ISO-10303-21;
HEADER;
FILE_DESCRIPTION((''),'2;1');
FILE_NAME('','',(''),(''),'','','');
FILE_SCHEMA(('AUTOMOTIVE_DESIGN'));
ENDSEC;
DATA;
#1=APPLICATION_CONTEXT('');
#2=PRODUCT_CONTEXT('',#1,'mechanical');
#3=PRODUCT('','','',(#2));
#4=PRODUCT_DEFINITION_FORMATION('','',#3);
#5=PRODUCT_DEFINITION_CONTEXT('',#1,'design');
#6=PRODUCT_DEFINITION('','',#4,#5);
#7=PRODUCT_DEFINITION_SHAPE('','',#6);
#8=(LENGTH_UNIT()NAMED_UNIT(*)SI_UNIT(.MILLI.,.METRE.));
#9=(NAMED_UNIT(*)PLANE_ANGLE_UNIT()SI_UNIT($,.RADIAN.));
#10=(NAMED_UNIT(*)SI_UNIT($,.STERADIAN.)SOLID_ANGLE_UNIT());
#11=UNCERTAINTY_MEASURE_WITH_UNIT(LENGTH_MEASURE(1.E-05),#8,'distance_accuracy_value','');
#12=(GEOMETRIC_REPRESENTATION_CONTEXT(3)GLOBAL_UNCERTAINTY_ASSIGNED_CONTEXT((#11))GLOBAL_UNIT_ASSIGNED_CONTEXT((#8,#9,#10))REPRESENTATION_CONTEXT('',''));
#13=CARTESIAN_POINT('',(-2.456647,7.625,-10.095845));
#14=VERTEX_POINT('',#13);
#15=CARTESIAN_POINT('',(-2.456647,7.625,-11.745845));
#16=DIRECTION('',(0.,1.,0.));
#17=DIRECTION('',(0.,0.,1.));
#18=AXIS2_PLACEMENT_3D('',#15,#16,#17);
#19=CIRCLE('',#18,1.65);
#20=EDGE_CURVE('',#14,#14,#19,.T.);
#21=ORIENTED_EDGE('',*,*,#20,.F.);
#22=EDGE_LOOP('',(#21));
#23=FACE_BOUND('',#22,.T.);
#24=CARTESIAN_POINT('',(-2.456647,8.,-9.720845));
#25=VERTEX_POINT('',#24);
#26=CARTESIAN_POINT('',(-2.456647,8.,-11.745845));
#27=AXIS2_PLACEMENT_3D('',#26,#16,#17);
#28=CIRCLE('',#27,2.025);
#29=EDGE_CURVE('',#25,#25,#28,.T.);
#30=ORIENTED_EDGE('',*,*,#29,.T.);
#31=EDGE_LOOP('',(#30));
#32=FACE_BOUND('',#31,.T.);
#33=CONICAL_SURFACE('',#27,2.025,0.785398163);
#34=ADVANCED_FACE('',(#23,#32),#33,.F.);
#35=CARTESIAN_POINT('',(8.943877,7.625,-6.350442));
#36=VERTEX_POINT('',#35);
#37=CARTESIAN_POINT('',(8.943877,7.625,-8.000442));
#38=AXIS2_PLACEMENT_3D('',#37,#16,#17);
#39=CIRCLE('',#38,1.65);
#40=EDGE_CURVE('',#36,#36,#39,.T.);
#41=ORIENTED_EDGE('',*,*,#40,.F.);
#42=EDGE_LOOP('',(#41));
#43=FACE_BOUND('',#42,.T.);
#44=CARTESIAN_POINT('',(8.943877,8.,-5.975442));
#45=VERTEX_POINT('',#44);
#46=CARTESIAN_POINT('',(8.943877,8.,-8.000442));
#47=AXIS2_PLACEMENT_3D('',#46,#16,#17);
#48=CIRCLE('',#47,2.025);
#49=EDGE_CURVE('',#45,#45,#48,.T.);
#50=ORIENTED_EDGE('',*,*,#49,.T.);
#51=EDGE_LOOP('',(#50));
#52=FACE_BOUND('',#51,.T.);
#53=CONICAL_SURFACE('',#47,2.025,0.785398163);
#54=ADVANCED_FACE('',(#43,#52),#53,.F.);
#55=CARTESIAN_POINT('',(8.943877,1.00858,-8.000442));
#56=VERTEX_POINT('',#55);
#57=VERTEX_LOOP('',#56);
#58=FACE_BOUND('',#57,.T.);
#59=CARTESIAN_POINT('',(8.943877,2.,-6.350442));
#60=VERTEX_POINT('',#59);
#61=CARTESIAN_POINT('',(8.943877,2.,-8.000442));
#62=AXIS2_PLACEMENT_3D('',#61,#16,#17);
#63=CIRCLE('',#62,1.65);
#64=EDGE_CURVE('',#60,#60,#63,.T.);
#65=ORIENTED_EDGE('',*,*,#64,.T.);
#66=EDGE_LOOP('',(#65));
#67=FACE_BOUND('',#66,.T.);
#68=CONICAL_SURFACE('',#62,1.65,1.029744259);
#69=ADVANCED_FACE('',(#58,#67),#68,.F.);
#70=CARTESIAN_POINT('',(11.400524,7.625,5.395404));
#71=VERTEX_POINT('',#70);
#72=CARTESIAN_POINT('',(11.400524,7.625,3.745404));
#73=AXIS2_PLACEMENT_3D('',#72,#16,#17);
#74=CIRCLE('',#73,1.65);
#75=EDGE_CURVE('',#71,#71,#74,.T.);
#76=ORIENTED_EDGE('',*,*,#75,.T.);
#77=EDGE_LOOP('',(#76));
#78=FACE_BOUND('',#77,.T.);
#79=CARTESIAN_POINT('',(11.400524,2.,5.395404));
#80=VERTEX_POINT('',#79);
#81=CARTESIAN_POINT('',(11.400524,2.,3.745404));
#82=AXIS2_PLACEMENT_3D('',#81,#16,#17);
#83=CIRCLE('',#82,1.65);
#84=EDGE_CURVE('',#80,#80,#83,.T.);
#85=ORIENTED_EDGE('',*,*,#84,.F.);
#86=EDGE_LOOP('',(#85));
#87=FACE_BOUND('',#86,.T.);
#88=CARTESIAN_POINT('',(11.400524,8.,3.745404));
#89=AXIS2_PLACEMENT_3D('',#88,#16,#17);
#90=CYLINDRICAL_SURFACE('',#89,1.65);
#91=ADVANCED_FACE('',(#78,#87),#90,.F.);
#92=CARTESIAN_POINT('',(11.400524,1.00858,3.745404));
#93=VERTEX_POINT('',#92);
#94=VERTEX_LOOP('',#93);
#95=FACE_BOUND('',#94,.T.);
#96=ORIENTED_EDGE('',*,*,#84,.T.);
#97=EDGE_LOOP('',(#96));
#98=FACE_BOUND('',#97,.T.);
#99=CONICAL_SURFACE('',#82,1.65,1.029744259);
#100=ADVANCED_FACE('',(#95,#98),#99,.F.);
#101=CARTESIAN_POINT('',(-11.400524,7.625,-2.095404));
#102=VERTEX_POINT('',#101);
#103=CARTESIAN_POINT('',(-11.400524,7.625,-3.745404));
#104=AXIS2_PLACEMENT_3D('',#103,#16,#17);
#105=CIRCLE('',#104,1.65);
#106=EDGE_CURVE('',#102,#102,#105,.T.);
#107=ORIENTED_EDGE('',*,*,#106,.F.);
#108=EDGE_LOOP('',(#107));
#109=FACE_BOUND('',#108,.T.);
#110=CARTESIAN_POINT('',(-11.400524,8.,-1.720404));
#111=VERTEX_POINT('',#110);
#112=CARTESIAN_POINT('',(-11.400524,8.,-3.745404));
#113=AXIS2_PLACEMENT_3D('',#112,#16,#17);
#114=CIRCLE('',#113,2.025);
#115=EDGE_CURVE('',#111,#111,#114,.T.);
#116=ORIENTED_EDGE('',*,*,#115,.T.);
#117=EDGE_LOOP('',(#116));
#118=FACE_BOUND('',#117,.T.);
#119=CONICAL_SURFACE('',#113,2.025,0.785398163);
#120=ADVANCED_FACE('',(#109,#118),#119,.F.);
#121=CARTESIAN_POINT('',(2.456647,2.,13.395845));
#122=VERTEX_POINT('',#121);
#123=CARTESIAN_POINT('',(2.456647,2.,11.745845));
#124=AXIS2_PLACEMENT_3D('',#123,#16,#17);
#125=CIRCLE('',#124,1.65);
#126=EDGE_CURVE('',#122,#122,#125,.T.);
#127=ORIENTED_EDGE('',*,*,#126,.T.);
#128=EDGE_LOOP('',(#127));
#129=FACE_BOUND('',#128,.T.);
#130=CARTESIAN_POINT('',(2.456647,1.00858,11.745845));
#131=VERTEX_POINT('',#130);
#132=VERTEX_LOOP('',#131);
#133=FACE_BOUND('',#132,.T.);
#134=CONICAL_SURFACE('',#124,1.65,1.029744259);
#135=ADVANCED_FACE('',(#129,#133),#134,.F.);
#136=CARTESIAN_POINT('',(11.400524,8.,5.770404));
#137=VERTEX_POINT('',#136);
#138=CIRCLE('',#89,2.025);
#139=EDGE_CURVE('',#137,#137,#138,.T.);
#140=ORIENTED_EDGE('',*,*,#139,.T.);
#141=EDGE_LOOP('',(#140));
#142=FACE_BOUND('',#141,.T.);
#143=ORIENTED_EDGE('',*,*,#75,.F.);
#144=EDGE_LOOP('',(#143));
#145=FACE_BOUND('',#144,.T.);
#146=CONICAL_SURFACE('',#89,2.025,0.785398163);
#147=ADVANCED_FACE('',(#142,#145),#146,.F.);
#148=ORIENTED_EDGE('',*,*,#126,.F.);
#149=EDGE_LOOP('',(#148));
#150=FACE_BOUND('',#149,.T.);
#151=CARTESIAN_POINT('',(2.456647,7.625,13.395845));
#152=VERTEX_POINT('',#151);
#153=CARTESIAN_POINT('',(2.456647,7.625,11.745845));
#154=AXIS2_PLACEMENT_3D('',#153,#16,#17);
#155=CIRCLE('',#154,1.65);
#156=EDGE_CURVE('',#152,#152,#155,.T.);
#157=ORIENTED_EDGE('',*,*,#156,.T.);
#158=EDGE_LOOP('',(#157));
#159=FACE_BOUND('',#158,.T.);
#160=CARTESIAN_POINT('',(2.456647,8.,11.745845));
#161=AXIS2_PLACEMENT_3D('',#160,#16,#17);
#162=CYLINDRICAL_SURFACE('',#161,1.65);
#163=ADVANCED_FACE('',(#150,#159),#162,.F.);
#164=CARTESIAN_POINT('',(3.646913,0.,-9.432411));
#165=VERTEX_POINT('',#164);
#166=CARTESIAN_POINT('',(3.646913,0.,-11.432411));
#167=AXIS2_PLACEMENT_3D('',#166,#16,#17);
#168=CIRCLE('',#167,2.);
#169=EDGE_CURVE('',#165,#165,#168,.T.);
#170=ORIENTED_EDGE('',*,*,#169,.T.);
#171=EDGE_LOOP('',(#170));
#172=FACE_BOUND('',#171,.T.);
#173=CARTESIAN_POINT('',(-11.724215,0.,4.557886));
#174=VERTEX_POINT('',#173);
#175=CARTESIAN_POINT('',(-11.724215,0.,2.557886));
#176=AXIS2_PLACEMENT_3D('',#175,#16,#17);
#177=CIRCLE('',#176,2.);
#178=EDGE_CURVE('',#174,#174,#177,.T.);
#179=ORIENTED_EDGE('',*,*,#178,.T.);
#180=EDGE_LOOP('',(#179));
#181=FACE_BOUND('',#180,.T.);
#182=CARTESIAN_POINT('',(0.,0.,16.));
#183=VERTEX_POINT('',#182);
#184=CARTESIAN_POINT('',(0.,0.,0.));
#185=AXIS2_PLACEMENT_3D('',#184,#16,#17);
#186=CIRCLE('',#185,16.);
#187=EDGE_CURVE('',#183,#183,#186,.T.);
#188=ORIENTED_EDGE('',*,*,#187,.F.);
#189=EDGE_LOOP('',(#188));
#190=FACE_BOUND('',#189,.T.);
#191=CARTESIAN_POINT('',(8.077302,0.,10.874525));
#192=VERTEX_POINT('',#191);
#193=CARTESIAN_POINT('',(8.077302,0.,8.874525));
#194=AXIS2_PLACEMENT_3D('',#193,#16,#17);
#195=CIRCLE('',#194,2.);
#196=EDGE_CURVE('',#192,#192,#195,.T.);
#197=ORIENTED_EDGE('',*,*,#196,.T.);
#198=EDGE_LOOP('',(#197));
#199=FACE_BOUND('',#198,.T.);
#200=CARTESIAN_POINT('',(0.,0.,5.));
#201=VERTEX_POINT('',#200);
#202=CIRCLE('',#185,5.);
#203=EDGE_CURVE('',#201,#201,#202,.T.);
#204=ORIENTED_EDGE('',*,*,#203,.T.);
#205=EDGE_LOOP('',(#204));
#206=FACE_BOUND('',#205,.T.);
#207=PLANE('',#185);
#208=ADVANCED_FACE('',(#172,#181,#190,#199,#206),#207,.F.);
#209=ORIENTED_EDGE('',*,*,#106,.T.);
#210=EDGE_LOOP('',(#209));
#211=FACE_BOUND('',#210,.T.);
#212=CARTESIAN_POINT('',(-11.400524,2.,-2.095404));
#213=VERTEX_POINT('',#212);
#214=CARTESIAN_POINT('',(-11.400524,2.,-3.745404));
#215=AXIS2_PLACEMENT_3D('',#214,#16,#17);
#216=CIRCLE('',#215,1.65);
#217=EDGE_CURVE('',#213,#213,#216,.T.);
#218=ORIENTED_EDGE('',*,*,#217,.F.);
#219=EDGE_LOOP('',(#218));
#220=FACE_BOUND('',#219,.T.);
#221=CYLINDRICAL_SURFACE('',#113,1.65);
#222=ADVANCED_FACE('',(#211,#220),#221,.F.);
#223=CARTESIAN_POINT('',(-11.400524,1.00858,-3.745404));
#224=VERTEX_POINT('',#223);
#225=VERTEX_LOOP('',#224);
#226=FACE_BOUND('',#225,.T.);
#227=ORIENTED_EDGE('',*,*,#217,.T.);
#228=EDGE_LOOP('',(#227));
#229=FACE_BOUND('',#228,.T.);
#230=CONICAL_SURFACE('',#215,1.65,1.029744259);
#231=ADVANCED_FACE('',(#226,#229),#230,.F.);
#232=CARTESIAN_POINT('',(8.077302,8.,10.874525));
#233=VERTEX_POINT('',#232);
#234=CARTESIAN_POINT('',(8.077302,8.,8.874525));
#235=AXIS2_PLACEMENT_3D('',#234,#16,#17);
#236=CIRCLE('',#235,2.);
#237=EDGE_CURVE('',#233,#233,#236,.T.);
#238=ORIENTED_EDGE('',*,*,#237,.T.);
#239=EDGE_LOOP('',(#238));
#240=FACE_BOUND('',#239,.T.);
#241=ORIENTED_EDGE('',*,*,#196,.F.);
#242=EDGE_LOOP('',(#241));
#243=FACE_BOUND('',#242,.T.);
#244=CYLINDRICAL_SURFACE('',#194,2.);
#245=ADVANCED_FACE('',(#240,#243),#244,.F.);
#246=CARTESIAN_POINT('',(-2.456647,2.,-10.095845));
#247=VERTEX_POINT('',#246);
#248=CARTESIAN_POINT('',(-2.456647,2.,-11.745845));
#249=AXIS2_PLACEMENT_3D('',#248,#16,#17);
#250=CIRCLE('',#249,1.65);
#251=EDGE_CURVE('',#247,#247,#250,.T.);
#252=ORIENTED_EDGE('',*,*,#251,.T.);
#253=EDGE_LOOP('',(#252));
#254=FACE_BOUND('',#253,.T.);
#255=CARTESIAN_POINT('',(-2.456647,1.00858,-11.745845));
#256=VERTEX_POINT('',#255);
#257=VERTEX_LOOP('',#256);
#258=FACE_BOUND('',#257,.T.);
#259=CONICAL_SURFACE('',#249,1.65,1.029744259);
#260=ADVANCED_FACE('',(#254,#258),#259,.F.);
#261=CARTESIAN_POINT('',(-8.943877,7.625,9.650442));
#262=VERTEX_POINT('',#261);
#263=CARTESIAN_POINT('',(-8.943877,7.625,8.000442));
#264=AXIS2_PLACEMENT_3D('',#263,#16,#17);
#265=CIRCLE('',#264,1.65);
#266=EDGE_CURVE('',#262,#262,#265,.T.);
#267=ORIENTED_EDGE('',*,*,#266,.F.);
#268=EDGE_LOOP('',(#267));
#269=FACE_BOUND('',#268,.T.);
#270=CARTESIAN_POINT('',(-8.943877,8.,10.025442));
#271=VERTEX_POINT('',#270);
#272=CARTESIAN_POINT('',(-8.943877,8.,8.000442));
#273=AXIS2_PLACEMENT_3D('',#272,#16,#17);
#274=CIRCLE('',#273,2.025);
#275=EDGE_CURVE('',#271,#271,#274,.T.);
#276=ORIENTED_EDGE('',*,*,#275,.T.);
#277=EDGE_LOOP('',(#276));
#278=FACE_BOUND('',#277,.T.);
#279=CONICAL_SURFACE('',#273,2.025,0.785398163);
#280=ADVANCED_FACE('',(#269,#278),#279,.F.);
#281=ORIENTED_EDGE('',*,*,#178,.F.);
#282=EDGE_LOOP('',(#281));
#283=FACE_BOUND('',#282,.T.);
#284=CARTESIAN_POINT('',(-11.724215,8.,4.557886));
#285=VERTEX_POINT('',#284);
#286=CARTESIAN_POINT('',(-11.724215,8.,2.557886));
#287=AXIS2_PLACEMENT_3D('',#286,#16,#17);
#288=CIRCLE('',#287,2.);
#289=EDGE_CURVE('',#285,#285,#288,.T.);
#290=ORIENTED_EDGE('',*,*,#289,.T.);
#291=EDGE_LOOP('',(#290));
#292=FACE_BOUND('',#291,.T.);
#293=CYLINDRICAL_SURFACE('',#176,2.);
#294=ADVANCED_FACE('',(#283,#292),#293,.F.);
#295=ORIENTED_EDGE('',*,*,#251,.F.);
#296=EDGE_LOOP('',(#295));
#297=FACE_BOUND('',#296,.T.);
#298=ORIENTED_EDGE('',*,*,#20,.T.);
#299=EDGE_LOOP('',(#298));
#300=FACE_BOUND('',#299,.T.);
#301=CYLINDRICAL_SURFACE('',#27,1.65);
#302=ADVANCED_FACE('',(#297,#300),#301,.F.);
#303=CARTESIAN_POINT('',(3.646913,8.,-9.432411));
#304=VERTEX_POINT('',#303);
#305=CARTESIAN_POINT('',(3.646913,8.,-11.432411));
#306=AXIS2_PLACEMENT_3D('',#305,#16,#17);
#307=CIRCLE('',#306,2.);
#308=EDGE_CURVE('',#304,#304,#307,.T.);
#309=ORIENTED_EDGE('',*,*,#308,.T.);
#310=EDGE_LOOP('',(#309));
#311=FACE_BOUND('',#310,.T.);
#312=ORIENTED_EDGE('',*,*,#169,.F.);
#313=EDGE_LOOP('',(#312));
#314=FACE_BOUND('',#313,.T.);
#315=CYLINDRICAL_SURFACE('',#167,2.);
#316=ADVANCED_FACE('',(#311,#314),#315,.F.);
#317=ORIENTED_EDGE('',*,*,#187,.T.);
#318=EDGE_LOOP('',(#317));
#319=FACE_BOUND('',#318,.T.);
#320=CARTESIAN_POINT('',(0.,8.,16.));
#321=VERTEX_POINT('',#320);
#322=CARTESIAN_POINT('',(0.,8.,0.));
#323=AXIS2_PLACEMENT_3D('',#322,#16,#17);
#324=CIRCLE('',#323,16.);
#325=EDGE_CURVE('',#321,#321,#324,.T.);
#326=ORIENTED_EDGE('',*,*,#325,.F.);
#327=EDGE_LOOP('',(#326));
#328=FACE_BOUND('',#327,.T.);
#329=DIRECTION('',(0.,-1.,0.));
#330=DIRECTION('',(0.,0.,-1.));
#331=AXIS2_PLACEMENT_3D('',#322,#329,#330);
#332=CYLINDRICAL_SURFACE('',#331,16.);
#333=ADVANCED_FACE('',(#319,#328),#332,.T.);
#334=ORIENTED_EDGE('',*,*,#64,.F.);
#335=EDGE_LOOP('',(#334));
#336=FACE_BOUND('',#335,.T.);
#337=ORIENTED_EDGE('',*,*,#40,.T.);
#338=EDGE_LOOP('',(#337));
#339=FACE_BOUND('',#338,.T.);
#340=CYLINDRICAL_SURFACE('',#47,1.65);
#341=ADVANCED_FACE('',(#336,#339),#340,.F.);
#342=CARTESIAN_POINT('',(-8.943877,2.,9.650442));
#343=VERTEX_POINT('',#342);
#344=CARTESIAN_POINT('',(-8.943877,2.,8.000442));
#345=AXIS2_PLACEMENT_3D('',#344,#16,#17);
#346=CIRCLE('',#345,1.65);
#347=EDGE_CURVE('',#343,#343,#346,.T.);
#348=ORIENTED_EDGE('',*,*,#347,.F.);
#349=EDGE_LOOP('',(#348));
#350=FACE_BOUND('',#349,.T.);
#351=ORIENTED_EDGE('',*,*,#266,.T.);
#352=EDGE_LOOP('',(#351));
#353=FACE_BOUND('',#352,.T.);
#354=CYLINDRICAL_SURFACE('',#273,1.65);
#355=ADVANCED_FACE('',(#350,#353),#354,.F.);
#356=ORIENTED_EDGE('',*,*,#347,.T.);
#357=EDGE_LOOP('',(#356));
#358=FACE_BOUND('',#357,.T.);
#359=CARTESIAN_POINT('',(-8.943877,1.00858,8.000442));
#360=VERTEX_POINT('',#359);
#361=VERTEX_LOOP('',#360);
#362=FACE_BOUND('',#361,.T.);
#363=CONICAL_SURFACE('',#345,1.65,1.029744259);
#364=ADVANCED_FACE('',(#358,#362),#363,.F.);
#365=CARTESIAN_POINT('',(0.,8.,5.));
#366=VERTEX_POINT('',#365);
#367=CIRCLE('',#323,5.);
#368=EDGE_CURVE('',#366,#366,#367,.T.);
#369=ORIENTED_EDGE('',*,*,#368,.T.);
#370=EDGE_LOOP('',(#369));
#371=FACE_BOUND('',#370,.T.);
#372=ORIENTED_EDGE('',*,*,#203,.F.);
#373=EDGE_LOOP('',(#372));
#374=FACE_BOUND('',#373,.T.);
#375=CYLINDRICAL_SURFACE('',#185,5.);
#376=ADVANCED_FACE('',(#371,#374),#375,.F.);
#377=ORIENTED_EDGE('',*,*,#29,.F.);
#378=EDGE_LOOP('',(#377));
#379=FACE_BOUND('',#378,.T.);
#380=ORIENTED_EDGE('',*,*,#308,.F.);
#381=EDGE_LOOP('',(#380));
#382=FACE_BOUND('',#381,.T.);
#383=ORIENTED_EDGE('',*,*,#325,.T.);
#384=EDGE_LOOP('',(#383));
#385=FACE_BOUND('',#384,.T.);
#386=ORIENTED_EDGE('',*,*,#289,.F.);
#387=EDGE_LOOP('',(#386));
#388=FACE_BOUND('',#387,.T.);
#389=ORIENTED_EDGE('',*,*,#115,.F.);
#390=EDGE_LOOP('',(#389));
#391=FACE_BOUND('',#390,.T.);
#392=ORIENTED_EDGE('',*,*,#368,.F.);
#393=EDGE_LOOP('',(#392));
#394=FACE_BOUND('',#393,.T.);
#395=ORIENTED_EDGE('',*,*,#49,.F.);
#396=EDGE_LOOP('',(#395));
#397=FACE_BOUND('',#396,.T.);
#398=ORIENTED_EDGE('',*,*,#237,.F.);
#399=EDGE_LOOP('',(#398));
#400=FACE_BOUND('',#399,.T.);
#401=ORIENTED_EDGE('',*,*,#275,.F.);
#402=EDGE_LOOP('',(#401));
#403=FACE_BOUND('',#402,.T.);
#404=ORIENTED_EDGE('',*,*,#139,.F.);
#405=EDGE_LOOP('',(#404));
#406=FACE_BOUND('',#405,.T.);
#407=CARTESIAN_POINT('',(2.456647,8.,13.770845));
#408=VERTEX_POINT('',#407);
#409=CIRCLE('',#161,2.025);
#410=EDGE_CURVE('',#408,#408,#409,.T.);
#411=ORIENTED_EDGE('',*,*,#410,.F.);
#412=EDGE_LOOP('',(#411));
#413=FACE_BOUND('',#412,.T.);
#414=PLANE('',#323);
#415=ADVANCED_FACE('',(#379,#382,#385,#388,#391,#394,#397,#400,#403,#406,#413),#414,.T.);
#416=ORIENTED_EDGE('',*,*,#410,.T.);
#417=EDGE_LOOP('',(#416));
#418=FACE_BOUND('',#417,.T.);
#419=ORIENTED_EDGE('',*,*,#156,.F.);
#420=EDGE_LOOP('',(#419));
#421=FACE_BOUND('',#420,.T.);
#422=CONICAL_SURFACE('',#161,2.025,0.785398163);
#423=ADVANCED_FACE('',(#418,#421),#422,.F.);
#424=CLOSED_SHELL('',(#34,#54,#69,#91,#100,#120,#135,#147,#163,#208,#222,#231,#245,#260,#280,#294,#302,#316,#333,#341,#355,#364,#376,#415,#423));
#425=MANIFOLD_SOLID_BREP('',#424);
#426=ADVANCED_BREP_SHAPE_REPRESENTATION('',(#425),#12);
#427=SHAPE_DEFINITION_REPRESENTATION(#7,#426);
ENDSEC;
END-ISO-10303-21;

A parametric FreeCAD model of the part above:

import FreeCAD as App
import Part
import Sketcher

doc = App.newDocument("Part")
body = doc.addObject("PartDesign::Body", "Body")

sketch1 = doc.addObject("Sketcher::SketchObject", "Sketch")
body.addObject(sketch1)
sketch1.AttachmentSupport = (doc.XZ_Plane, [""])
sketch1.MapMode = "FlatFace"
sketch1.addGeometry(Part.Circle(App.Vector(0, 0, 0), App.Vector(0, 0, 1), 16), False)
sketch1.addConstraint([
    Sketcher.Constraint("Coincident", 0, 3, -1, 1),
    Sketcher.Constraint("Diameter", 0, 32.0),
])
pad1 = doc.addObject("PartDesign::Pad", "Pad")
body.addObject(pad1)
pad1.Profile = sketch1
pad1.Length = 8
pad1.Reversed = True

sketch2 = doc.addObject("Sketcher::SketchObject", "Sketch001")
body.addObject(sketch2)
sketch2.AttachmentSupport = (doc.XZ_Plane, [""])
sketch2.MapMode = "FlatFace"
sketch2.AttachmentOffset = App.Placement(App.Vector(0, 0, -8), App.Rotation())
sketch2.addGeometry([
    Part.Circle(App.Vector(-11.4, -3.7, 0), App.Vector(0, 0, 1), 1.6),
    Part.Circle(App.Vector(-2.5, -11.7, 0), App.Vector(0, 0, 1), 1.6),
    Part.Circle(App.Vector(8.9, -8, 0), App.Vector(0, 0, 1), 1.6),
    Part.Circle(App.Vector(11.4, 3.7, 0), App.Vector(0, 0, 1), 1.6),
    Part.Circle(App.Vector(2.5, 11.7, 0), App.Vector(0, 0, 1), 1.6),
    Part.Circle(App.Vector(-8.9, 8, 0), App.Vector(0, 0, 1), 1.6),
], False)
sketch2.addConstraint([
    Sketcher.Constraint("Equal", 0, 1),
    Sketcher.Constraint("Equal", 1, 2),
    Sketcher.Constraint("Equal", 2, 3),
    Sketcher.Constraint("Equal", 3, 4),
    Sketcher.Constraint("Equal", 4, 5),
    Sketcher.Constraint("Symmetric", 0, 3, 3, 3, -1, 1),
    Sketcher.Constraint("Symmetric", 1, 3, 4, 3, -1, 1),
    Sketcher.Constraint("Symmetric", 2, 3, 5, 3, -1, 1),
    Sketcher.Constraint("Diameter", 0, 3.3),
    Sketcher.Constraint("DistanceX", 0, 3, 2, 3, 20.344401),
    Sketcher.Constraint("DistanceY", 2, 3, -1, 1, 8.000442),
    Sketcher.Constraint("DistanceY", 1, 3, 0, 3, 8.000442),
    Sketcher.Constraint("DistanceY", 2, 3, 0, 3, 4.255038),
    Sketcher.Constraint("DistanceX", 1, 3, 3, 3, 13.857172),
    Sketcher.Constraint("DistanceX", 0, 3, 3, 3, 22.801048),
])
doc.recompute()
hole = doc.addObject("PartDesign::Hole", "Hole")
body.addObject(hole)
hole.Profile = sketch2
hole.ThreadType = "None"
hole.Diameter = 3.3
hole.DepthType = "Dimension"
hole.Depth = 6
hole.DrillPoint = "Angled"
hole.DrillPointAngle = 118
hole.HoleCutType = "Countersink"
hole.HoleCutDiameter = 4.05
hole.HoleCutCountersinkAngle = 90
hole.Reversed = True

sketch3 = doc.addObject("Sketcher::SketchObject", "Sketch002")
body.addObject(sketch3)
sketch3.AttachmentSupport = (doc.XZ_Plane, [""])
sketch3.MapMode = "FlatFace"
sketch3.AttachmentOffset = App.Placement(App.Vector(0, 0, -8), App.Rotation())
sketch3.addGeometry([
    Part.Circle(App.Vector(3.6, -11.4, 0), App.Vector(0, 0, 1), 2),
    Part.Circle(App.Vector(8.1, 8.9, 0), App.Vector(0, 0, 1), 2),
    Part.Circle(App.Vector(-11.7, 2.6, 0), App.Vector(0, 0, 1), 2),
], False)
sketch3.addConstraint([
    Sketcher.Constraint("Equal", 0, 1),
    Sketcher.Constraint("Equal", 1, 2),
    Sketcher.Constraint("Diameter", 0, 4.0),
    Sketcher.Constraint("DistanceY", 0, 3, -1, 1, 11.432411),
    Sketcher.Constraint("DistanceX", 0, 3, 1, 3, 4.430389),
    Sketcher.Constraint("DistanceY", 2, 3, 1, 3, 6.316638),
    Sketcher.Constraint("DistanceX", -1, 1, 0, 3, 3.646913),
    Sketcher.Constraint("DistanceY", -1, 1, 1, 3, 8.874525),
    Sketcher.Constraint("DistanceX", 2, 3, -1, 1, 11.724215),
])
pocket1 = doc.addObject("PartDesign::Pocket", "Pocket")
body.addObject(pocket1)
pocket1.Profile = sketch3
pocket1.Length = 8
pocket1.Reversed = True

sketch4 = doc.addObject("Sketcher::SketchObject", "Sketch003")
body.addObject(sketch4)
sketch4.AttachmentSupport = (doc.XZ_Plane, [""])
sketch4.MapMode = "FlatFace"
sketch4.AttachmentOffset = App.Placement(App.Vector(0, 0, -8), App.Rotation())
sketch4.addGeometry(Part.Circle(App.Vector(0, 0, 0), App.Vector(0, 0, 1), 5), False)
sketch4.addConstraint([
    Sketcher.Constraint("Coincident", 0, 3, -1, 1),
    Sketcher.Constraint("Diameter", 0, 10.0),
])
pocket2 = doc.addObject("PartDesign::Pocket", "Pocket001")
body.addObject(pocket2)
pocket2.Profile = sketch4
pocket2.Length = 8
pocket2.Reversed = True

doc.recompute()
